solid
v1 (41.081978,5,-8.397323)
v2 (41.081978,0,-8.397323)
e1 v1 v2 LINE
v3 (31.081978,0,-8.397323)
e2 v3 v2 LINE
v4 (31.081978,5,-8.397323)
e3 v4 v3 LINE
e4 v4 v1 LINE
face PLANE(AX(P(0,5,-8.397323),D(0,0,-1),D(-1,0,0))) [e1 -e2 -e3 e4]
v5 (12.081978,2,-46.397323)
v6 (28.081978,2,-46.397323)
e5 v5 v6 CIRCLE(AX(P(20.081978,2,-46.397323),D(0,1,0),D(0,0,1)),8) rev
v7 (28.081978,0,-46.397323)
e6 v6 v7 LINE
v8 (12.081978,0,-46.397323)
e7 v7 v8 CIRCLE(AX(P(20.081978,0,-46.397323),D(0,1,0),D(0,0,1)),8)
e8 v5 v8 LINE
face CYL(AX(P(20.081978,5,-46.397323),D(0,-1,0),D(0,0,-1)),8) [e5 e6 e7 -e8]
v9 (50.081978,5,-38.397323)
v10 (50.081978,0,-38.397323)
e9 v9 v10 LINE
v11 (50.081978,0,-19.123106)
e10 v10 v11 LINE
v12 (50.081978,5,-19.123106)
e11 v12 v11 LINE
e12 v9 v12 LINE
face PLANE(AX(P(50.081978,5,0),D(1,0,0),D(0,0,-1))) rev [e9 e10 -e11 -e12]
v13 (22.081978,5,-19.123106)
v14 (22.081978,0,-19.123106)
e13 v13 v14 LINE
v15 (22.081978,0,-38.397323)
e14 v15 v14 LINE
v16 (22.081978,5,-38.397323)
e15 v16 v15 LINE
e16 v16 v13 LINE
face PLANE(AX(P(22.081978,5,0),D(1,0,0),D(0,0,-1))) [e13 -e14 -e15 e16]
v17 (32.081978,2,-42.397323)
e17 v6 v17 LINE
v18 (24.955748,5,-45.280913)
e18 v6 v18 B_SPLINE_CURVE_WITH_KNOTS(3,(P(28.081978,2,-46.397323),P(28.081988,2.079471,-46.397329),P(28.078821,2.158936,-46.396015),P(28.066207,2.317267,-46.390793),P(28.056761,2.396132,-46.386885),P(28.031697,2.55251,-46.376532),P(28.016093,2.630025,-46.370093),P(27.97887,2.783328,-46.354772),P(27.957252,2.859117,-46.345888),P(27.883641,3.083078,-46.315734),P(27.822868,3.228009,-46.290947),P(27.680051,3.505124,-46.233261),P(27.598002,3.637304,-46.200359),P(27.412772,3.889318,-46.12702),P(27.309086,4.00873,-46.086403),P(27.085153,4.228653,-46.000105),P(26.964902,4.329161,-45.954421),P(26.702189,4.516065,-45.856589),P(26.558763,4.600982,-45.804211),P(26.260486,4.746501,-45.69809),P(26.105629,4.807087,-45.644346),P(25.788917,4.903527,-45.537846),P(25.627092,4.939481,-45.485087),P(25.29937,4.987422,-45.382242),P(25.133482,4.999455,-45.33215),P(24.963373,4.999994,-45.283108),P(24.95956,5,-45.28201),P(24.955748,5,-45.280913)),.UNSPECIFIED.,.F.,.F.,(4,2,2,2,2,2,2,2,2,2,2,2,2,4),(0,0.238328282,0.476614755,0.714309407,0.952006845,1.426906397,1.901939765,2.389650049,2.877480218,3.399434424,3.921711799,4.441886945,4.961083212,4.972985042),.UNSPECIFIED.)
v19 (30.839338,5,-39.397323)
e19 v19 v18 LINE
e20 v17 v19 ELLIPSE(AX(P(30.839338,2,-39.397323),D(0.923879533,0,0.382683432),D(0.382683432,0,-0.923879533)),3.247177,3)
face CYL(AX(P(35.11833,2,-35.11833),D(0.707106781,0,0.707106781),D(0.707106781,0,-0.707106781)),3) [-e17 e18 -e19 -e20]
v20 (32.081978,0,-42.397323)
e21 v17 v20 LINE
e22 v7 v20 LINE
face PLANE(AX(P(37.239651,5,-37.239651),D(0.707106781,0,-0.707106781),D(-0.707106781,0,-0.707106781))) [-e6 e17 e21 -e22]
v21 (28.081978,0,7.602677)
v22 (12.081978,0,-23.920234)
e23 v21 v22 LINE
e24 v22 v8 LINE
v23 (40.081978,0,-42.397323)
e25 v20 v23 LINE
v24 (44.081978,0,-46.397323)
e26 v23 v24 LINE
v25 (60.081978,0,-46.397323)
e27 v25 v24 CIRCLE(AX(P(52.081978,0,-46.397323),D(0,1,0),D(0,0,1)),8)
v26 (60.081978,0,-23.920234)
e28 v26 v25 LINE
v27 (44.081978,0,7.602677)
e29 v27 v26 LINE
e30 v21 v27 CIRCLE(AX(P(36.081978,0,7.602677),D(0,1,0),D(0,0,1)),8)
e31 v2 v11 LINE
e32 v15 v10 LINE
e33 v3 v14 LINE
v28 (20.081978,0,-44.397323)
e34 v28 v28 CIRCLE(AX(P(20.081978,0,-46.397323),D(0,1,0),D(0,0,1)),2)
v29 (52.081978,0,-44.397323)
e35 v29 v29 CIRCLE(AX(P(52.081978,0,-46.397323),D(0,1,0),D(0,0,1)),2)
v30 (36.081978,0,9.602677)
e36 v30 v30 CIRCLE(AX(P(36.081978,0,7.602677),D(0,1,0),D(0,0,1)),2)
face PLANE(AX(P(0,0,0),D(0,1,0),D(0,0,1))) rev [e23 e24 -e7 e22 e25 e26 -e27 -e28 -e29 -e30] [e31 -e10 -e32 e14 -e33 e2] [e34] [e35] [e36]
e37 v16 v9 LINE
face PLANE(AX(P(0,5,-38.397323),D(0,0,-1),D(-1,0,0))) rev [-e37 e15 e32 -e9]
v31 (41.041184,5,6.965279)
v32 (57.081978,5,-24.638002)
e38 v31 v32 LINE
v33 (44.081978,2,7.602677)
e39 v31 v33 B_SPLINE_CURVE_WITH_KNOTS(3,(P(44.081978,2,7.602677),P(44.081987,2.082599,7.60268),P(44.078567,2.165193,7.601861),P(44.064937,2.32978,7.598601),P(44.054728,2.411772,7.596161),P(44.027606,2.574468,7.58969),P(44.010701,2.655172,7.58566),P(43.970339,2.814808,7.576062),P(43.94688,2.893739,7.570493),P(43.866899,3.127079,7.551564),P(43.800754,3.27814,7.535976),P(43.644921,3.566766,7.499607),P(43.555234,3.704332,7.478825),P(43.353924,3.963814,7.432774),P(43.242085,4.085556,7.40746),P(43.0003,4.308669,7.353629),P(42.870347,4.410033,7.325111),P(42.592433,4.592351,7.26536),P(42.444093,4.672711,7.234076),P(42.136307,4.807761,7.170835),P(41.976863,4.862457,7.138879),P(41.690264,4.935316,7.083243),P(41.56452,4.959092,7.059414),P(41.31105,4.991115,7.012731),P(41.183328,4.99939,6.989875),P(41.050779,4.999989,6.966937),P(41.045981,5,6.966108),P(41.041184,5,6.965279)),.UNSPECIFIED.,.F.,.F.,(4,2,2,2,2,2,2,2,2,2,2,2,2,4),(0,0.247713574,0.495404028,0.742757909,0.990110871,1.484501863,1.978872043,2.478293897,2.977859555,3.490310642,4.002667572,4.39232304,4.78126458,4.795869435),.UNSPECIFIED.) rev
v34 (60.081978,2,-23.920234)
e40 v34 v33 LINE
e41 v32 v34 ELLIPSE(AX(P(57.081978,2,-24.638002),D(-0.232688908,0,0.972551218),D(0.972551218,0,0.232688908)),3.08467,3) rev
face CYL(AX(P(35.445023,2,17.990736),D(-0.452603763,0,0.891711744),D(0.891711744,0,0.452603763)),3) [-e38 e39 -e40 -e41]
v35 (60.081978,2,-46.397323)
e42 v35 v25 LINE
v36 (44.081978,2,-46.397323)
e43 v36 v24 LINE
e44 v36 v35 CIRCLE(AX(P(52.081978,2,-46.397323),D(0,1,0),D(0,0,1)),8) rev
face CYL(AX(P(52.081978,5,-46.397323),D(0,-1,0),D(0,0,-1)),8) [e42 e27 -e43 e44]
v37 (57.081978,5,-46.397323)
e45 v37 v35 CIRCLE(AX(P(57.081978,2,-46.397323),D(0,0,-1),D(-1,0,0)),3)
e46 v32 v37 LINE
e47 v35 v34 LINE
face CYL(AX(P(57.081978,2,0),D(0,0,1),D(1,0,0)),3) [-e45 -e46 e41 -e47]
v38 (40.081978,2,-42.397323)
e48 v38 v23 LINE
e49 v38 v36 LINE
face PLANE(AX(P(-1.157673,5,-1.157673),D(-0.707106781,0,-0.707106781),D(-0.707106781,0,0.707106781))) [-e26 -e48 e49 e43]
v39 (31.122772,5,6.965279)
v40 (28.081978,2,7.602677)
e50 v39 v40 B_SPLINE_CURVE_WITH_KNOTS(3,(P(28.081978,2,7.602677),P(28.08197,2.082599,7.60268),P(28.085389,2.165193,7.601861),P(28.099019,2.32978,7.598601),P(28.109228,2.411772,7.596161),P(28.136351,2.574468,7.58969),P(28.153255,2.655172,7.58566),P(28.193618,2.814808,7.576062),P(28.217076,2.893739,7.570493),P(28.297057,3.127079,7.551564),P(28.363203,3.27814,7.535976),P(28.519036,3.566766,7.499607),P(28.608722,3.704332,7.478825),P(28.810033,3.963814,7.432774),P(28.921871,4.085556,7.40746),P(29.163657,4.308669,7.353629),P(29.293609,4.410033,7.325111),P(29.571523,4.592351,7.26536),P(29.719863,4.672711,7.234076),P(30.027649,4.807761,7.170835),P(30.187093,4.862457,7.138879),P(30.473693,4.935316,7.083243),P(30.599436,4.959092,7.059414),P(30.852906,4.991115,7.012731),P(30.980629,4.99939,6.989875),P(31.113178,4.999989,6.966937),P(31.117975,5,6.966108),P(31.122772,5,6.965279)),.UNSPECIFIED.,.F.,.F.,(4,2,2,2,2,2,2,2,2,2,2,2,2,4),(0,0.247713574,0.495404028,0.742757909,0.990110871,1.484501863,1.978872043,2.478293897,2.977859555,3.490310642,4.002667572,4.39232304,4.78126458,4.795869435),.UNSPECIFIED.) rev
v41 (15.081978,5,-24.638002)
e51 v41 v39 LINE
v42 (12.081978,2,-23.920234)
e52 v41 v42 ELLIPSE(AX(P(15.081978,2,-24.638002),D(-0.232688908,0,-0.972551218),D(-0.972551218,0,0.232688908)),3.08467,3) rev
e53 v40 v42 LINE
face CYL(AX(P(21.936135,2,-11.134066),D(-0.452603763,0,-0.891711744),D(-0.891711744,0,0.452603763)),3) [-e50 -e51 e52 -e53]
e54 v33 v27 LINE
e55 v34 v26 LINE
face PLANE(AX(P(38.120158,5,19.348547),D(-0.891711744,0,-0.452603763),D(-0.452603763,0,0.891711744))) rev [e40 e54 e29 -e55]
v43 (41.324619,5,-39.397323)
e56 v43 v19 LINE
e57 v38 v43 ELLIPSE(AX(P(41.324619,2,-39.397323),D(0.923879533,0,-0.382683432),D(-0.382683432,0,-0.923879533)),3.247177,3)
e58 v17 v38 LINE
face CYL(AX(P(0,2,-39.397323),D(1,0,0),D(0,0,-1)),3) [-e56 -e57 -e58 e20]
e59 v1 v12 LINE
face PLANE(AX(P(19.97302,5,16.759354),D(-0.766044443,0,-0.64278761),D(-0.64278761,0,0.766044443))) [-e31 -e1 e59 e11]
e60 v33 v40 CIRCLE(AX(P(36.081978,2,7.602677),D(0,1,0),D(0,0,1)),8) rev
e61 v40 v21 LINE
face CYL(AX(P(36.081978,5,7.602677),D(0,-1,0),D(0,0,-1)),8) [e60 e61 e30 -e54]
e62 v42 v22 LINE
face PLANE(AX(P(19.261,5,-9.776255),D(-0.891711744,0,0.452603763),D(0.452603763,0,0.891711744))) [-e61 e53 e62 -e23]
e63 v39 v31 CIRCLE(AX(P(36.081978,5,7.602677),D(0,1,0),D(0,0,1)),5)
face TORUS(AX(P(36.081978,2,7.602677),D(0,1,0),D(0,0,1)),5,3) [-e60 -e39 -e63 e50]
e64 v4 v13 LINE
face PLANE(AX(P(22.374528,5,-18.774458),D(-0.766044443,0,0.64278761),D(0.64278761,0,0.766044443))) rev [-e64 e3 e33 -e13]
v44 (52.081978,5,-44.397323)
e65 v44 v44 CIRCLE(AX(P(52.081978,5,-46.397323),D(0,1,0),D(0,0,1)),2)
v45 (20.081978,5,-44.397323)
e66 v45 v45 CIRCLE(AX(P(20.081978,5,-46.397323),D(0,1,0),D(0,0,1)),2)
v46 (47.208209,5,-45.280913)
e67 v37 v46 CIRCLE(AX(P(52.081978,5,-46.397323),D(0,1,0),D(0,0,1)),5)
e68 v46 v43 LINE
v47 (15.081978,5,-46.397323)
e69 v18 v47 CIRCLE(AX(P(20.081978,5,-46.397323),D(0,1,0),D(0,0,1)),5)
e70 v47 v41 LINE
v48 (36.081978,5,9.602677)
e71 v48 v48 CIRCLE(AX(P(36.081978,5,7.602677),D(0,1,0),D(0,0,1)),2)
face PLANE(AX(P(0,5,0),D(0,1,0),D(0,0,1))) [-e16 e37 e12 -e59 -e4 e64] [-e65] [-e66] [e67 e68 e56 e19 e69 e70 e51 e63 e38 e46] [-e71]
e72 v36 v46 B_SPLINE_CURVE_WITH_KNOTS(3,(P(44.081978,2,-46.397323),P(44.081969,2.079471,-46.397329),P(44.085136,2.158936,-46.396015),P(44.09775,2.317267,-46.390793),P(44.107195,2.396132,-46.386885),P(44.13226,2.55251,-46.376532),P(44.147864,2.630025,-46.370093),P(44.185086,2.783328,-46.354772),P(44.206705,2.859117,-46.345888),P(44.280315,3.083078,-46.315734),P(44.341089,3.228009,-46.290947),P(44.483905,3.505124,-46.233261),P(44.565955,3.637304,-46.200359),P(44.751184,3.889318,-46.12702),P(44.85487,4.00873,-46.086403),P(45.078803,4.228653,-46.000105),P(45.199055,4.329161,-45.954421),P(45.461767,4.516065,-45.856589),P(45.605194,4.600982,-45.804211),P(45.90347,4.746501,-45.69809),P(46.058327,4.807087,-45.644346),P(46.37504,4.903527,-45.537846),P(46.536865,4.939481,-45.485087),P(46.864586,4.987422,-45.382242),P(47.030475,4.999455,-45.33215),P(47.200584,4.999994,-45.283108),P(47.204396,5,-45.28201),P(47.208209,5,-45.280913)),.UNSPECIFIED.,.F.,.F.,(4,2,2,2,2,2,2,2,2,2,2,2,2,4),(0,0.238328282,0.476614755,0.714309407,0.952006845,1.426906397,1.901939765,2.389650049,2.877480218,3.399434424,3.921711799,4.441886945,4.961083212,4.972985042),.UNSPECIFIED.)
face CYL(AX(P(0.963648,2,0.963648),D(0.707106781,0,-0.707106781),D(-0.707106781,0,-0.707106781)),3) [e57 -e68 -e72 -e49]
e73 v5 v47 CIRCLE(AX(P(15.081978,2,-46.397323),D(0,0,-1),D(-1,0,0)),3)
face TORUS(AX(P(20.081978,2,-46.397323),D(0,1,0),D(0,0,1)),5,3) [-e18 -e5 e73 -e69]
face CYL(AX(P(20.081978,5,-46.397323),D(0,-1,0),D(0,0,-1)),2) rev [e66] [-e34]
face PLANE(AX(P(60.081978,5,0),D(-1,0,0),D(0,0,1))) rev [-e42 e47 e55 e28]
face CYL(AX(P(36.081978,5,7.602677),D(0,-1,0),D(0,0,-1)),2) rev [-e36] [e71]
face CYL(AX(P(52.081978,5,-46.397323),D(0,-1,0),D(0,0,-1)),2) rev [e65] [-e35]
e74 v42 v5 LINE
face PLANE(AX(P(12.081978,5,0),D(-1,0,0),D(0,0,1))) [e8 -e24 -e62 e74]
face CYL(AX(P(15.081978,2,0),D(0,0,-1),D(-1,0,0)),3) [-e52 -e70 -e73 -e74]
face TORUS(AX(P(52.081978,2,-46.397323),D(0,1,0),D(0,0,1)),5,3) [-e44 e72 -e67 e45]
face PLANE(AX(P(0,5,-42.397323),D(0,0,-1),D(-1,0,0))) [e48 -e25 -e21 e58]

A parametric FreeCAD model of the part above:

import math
import FreeCAD as App
import Part
import Sketcher

V = App.Vector
Q = App.Units.Quantity


def edges_at(feature, points):
    """Names of the edges that pass closest to the given points."""
    edges = feature.Shape.Edges
    near = lambda p: min(range(len(edges)), key=lambda i: edges[i].distToShape(Part.Vertex(*p))[0])
    return sorted({f"Edge{near(p) + 1}" for p in points})

doc = App.newDocument("Part")
body = doc.addObject("PartDesign::Body", "Body")

sketch1 = body.newObject("Sketcher::SketchObject", "Sketch")
sketch1.AttachmentSupport = (doc.getObject("XZ_Plane"), [""])
sketch1.MapMode = "FlatFace"
sketch1.addGeometry([
    Part.LineSegment(V(12.081978, -23.920234, 0), V(28.081978, 7.602677, 0)),
    Part.ArcOfCircle(Part.Circle(V(36.081978, 7.602677, 0), V(0, 0, 1), 8), math.radians(0), math.radians(180)),
    Part.LineSegment(V(44.081978, 7.602677, 0), V(60.081978, -23.920234, 0)),
    Part.LineSegment(V(60.081978, -23.920234, 0), V(60.081978, -46.397323, 0)),
    Part.ArcOfCircle(Part.Circle(V(52.081978, -46.397323, 0), V(0, 0, 1), 8), math.radians(180), math.radians(360)),
    Part.LineSegment(V(44.081978, -46.397323, 0), V(40.081978, -42.397323, 0)),
    Part.LineSegment(V(40.081978, -42.397323, 0), V(32.081978, -42.397323, 0)),
    Part.LineSegment(V(32.081978, -42.397323, 0), V(28.081978, -46.397323, 0)),
    Part.ArcOfCircle(Part.Circle(V(20.081978, -46.397323, 0), V(0, 0, 1), 8), math.radians(180), math.radians(360)),
    Part.LineSegment(V(12.081978, -46.397323, 0), V(12.081978, -23.920234, 0)),
    Part.Circle(V(36.081978, 7.602677, 0), V(0, 0, 1), 2),
    Part.Circle(V(20.081978, -46.397323, 0), V(0, 0, 1), 2),
    Part.LineSegment(V(31.081978, -8.397323, 0), V(22.081978, -19.123106, 0)),
    Part.LineSegment(V(22.081978, -19.123106, 0), V(22.081978, -38.397323, 0)),
    Part.LineSegment(V(22.081978, -38.397323, 0), V(50.081978, -38.397323, 0)),
    Part.LineSegment(V(50.081978, -38.397323, 0), V(50.081978, -19.123106, 0)),
    Part.LineSegment(V(50.081978, -19.123106, 0), V(41.081978, -8.397323, 0)),
    Part.LineSegment(V(41.081978, -8.397323, 0), V(31.081978, -8.397323, 0)),
    Part.Circle(V(52.081978, -46.397323, 0), V(0, 0, 1), 2),
], False)
sketch1.addConstraint([
    Sketcher.Constraint("Coincident", 0, 2, 1, 2),
    Sketcher.Constraint("Coincident", 1, 1, 2, 1),
    Sketcher.Constraint("Coincident", 2, 2, 3, 1),
    Sketcher.Constraint("Tangent", 3, 2, 4, 2),
    Sketcher.Constraint("Coincident", 4, 1, 5, 1),
    Sketcher.Constraint("Coincident", 5, 2, 6, 1),
    Sketcher.Constraint("Coincident", 6, 2, 7, 1),
    Sketcher.Constraint("Coincident", 7, 2, 8, 2),
    Sketcher.Constraint("Tangent", 8, 1, 9, 1),
    Sketcher.Constraint("Coincident", 9, 2, 0, 1),
    Sketcher.Constraint("Coincident", 12, 2, 13, 1),
    Sketcher.Constraint("Coincident", 13, 2, 14, 1),
    Sketcher.Constraint("Coincident", 14, 2, 15, 1),
    Sketcher.Constraint("Coincident", 15, 2, 16, 1),
    Sketcher.Constraint("Coincident", 16, 2, 17, 1),
    Sketcher.Constraint("Coincident", 17, 2, 12, 1),
    Sketcher.Constraint("Vertical", 3),
    Sketcher.Constraint("Horizontal", 6),
    Sketcher.Constraint("Vertical", 9),
    Sketcher.Constraint("Vertical", 13),
    Sketcher.Constraint("Horizontal", 14),
    Sketcher.Constraint("Vertical", 15),
    Sketcher.Constraint("Horizontal", 17),
    Sketcher.Constraint("Coincident", 10, 3, 1, 3),
    Sketcher.Constraint("Coincident", 11, 3, 8, 3),
    Sketcher.Constraint("Coincident", 18, 3, 4, 3),
    Sketcher.Constraint("Equal", 1, 4),
    Sketcher.Constraint("Equal", 4, 8),
    Sketcher.Constraint("Equal", 10, 11),
    Sketcher.Constraint("Equal", 11, 18),
    Sketcher.Constraint("Perpendicular", 5, 7),
    Sketcher.Constraint("Horizontal", 4, 3, 8, 3),
    Sketcher.Constraint("Horizontal", 10, 3, 0, 2),
    Sketcher.Constraint("Horizontal", 0, 2, 1, 1),
    Sketcher.Constraint("Horizontal", 3, 2, 4, 1),
    Sketcher.Constraint("Horizontal", 4, 1, 7, 2),
    Sketcher.Constraint("Horizontal", 2, 2, 9, 2),
    Sketcher.Constraint("Horizontal", 12, 2, 15, 2),
    Sketcher.Constraint("Vertical", 1, 1, 4, 1),
    Sketcher.Constraint("Vertical", 0, 2, 7, 2),
    Sketcher.Constraint("Equal", 5, 7),
    Sketcher.Constraint("Equal", 12, 16),
    Sketcher.Constraint("Diameter", 10, 4.0),
    Sketcher.Constraint("Radius", 1, 8.0),
    Sketcher.Constraint("DistanceX", 6, 2, 6, 1, 8.0),
    Sketcher.Constraint("DistanceX", 14, 1, 14, 2, 28.0),
    Sketcher.Constraint("DistanceX", 17, 2, 17, 1, 10.0),
    Sketcher.Constraint("Angle", 12, Q("-130 deg")),
    Sketcher.Constraint("DistanceY", 4, 3, 1, 3, 54.0),
    Sketcher.Constraint("DistanceX", 9, 2, 12, 2, 10.0),
    Sketcher.Constraint("DistanceY", 8, 3, 13, 2, 8.0),
    Sketcher.Constraint("DistanceY", 16, 2, 1, 1, 16.0),
    Sketcher.Constraint("DistanceY", 3, 2, 3, 1, 22.477089),
    Sketcher.Constraint("DistanceX", -1, 1, 1, 3, 36.081978),
    Sketcher.Constraint("DistanceY", -1, 1, 1, 3, 7.602677),
])
pad1 = body.newObject("PartDesign::Pad", "Pad")
pad1.Profile = sketch1
pad1.Length = 5
pad1.Reversed = True
doc.recompute()

fillet = body.newObject("PartDesign::Fillet", "Fillet")
fillet.Base = (pad1, edges_at(pad1, [
    (12.082, 5, -35.159),
    (20.082, 5, -8.159),
    (36.082, 5, 15.603),
    (52.082, 5, -8.159),
    (60.082, 5, -35.159),
    (52.082, 5, -54.397),
    (42.082, 5, -44.397),
    (36.082, 5, -42.397),
    (30.082, 5, -44.397),
    (20.082, 5, -54.397),
]))
fillet.Radius = 3

doc.recompute()
